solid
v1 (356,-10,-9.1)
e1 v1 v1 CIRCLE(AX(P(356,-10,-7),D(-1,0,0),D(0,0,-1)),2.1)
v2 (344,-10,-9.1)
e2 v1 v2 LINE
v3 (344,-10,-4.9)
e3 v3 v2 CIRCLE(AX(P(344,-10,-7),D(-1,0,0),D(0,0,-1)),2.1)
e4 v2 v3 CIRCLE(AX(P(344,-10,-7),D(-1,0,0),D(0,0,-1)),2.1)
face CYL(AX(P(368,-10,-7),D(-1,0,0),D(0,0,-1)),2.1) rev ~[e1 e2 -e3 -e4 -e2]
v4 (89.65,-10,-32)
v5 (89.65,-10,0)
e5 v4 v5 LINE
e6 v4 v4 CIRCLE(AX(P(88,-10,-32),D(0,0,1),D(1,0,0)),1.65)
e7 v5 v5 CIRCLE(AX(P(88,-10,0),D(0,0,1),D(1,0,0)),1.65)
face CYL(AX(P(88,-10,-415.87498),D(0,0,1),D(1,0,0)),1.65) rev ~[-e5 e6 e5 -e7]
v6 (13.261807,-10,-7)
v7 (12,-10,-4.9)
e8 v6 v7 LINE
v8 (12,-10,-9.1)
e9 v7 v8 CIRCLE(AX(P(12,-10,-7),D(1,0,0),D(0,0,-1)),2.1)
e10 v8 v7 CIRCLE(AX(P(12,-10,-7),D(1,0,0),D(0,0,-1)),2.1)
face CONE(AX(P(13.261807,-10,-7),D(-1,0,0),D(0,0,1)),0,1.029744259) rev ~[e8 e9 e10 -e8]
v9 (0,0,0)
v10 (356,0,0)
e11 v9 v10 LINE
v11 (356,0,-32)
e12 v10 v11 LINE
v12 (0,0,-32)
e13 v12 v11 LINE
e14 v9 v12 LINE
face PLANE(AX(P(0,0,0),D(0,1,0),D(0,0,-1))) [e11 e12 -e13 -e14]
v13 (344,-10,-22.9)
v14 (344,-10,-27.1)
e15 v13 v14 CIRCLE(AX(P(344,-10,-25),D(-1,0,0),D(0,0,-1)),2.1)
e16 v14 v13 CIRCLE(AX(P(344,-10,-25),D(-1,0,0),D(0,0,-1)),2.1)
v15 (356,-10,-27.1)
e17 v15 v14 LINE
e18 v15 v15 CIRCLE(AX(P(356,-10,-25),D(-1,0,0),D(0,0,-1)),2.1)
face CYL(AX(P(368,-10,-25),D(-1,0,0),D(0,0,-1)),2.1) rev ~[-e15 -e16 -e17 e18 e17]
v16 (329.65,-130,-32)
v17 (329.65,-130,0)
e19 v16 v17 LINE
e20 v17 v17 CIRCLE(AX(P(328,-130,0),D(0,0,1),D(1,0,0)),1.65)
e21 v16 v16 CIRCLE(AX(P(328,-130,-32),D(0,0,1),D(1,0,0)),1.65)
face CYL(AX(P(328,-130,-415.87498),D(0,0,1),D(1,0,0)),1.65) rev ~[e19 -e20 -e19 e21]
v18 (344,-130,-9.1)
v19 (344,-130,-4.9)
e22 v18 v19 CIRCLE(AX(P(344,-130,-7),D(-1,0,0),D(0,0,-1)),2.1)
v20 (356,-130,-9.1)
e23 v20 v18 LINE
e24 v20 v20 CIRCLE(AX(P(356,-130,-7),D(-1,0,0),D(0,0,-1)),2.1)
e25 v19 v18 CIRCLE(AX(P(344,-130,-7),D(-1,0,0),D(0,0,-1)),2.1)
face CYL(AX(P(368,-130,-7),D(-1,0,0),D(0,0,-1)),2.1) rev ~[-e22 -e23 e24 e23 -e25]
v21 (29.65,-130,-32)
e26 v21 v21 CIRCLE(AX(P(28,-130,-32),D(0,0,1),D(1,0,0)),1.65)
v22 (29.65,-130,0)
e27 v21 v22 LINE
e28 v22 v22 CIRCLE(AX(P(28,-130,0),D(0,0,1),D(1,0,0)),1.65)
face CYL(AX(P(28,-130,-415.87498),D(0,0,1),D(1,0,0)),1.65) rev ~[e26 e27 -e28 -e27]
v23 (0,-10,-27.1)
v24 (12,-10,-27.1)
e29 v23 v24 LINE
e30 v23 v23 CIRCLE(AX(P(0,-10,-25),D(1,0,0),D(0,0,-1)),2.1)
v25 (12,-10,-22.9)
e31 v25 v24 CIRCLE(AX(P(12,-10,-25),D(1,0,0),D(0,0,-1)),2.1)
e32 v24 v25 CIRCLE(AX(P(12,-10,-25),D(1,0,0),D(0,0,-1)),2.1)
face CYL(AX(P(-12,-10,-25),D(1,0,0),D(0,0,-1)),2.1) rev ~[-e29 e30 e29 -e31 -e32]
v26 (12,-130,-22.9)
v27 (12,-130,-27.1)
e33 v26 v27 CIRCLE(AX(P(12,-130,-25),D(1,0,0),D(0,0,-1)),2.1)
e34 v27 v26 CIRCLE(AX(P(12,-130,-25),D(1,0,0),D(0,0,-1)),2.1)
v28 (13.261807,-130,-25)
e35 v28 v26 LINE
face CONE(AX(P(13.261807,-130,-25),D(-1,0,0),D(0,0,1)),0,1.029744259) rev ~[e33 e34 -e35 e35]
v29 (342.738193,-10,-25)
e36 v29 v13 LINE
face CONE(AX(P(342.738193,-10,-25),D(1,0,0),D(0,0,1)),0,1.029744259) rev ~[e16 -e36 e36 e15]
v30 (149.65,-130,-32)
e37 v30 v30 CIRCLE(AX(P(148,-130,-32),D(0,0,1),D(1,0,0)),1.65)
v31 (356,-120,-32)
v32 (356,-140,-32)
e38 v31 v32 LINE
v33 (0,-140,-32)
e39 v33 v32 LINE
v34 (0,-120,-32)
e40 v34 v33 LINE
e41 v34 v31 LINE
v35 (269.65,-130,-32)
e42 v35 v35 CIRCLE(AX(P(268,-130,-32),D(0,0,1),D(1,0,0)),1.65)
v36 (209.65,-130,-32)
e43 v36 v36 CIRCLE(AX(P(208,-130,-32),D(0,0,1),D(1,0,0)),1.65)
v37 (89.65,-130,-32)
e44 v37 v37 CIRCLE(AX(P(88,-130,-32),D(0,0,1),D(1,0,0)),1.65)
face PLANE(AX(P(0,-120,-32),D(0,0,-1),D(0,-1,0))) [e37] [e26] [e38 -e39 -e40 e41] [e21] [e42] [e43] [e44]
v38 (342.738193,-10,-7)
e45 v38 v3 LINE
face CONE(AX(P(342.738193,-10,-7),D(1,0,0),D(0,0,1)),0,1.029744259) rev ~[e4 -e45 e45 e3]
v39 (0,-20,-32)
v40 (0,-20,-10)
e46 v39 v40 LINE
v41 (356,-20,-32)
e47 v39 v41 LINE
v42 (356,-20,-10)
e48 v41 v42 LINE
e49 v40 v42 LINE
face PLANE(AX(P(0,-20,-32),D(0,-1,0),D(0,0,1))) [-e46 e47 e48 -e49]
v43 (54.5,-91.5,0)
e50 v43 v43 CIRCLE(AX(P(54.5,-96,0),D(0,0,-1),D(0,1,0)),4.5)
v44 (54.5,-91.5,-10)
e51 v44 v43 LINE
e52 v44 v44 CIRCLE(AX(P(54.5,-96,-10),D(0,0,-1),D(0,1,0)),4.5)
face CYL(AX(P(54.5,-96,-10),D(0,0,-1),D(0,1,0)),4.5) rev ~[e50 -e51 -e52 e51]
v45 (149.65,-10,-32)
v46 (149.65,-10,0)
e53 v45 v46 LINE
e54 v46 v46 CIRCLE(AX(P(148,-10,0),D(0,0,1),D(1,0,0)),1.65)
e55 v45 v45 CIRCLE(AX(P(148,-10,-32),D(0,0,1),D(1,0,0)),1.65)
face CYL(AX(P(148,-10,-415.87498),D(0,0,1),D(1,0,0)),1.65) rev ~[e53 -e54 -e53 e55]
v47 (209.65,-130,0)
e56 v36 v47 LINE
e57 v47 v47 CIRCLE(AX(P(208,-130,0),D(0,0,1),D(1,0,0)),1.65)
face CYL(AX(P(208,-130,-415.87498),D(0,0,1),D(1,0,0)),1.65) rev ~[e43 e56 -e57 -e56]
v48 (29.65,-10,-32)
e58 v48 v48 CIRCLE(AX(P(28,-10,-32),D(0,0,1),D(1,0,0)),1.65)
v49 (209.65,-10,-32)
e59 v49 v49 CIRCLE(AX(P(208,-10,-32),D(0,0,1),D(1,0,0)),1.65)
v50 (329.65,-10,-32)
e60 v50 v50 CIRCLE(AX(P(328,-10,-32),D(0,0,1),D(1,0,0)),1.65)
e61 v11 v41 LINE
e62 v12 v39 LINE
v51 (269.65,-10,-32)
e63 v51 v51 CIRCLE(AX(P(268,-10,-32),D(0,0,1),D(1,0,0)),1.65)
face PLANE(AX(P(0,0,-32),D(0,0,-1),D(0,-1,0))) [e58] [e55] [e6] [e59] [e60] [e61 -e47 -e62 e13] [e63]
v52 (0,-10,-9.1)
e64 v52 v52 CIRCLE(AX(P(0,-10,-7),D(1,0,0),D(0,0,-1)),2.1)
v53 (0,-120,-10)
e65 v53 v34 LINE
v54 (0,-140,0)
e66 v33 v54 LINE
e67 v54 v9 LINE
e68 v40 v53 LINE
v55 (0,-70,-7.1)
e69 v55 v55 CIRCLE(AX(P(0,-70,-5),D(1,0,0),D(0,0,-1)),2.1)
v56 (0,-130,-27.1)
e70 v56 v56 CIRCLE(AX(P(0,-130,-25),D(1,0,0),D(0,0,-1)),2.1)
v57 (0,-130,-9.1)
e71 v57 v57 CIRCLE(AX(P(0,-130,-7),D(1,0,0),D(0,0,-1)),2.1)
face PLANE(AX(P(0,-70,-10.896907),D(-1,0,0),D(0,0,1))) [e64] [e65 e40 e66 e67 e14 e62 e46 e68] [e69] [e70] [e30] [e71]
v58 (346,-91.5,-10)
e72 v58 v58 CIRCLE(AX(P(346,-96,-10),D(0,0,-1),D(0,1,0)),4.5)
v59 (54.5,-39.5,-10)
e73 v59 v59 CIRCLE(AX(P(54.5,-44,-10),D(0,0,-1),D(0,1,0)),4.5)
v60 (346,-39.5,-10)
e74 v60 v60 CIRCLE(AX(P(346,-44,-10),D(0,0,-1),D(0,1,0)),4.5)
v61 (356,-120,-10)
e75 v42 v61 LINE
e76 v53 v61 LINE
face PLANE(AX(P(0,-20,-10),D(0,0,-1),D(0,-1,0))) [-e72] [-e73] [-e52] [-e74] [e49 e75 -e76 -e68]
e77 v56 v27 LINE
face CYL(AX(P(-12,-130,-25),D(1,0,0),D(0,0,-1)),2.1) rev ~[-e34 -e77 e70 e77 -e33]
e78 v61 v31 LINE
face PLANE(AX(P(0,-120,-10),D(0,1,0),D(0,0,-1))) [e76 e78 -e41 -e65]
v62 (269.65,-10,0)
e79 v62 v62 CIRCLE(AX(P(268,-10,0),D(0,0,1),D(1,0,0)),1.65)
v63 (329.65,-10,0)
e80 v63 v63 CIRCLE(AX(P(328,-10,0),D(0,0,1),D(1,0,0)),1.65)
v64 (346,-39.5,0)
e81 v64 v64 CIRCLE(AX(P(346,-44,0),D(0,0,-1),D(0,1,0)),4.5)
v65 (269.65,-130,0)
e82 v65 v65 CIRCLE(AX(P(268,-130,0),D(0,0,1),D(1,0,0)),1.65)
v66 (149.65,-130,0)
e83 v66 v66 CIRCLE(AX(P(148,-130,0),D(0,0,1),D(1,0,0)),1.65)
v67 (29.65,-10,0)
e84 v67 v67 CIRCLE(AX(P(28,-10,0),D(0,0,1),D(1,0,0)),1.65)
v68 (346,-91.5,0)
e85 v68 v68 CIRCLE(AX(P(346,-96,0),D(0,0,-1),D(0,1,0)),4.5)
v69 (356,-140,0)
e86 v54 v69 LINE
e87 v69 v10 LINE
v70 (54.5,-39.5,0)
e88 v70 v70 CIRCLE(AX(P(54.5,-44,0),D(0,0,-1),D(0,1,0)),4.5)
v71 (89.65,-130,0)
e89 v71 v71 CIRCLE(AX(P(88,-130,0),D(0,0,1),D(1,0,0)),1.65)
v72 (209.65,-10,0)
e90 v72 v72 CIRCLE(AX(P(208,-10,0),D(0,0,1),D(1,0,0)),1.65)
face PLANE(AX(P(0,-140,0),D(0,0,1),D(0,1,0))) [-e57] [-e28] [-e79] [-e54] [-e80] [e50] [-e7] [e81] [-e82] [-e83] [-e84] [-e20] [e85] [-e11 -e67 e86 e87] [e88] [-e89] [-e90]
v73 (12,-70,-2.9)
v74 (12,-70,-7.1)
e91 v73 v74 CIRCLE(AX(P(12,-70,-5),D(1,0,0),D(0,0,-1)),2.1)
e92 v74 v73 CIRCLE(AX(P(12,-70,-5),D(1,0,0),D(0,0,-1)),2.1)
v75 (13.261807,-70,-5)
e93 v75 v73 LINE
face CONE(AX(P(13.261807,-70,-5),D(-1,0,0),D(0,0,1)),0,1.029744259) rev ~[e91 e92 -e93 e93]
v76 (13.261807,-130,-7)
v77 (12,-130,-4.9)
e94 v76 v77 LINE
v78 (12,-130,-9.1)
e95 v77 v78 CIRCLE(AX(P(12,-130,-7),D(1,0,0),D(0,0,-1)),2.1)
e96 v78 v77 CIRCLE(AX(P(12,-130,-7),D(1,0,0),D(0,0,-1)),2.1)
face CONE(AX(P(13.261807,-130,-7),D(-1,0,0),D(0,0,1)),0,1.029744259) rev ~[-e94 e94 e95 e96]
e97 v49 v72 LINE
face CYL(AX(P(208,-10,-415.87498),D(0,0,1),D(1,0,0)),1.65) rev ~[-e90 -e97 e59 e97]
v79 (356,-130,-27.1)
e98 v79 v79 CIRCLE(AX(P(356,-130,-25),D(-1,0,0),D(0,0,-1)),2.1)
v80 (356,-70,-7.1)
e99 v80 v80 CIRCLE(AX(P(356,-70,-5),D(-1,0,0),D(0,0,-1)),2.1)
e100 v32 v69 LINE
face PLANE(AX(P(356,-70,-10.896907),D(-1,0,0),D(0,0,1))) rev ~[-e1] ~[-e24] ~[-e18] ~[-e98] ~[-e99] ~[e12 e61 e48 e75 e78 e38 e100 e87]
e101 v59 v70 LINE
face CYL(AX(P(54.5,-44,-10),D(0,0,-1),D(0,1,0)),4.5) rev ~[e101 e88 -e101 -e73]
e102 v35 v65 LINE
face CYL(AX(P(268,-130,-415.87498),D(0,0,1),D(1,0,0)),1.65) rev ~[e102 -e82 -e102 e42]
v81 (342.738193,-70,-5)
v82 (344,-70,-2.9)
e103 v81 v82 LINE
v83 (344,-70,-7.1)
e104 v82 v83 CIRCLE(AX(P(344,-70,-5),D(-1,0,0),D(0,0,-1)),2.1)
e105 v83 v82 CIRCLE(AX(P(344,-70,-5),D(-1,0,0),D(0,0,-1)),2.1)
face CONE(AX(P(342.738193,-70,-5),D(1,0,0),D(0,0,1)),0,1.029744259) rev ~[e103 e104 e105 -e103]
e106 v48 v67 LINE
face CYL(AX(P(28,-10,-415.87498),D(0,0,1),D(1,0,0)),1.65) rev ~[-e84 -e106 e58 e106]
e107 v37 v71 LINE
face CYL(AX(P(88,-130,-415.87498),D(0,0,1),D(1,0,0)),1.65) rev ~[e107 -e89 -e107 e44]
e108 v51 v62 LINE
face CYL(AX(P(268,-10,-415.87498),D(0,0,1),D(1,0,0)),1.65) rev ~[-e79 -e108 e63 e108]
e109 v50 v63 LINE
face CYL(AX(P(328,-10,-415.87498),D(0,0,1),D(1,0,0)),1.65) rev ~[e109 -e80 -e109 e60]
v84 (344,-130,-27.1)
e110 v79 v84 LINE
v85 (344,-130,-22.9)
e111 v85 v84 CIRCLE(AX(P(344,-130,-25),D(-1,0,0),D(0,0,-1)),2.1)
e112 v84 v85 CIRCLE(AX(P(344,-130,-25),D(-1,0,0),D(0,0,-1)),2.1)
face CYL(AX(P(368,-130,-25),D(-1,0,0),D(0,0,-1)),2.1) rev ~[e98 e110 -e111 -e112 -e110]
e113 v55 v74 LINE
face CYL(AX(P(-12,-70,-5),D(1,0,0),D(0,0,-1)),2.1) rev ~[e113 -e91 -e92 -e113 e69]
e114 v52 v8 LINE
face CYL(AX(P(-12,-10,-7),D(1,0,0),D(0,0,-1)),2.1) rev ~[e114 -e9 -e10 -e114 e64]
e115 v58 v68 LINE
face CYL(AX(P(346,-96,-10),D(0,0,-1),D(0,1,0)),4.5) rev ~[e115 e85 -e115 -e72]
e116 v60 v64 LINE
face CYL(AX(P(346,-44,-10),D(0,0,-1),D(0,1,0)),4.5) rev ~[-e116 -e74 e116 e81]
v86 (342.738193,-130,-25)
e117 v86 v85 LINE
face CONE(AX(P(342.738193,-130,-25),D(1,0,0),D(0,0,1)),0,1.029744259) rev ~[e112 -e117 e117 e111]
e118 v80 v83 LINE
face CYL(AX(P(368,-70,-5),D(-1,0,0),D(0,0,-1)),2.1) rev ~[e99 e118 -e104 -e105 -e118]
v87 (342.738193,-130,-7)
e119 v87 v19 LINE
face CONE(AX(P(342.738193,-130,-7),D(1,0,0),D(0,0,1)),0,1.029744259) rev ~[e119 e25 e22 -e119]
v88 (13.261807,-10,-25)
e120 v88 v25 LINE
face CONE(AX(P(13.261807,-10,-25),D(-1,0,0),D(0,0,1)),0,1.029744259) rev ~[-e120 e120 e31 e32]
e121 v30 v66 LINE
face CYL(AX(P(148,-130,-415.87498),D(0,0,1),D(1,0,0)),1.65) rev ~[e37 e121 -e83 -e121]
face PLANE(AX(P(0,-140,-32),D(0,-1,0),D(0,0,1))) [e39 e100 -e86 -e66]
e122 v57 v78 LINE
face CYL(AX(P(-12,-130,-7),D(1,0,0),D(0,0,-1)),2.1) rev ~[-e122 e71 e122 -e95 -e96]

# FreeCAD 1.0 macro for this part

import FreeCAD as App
import Part
import Sketcher
from FreeCAD import Vector
Q = App.Units.Quantity


def add_polygon(sketch, points):
    """Adds a closed chain of lines whose ends are joined by coincident constraints."""
    first, n = sketch.GeometryCount, len(points)
    for a, b in zip(points, points[1:] + points[:1]):
        sketch.addGeometry(Part.LineSegment(App.Vector(*a, 0), App.Vector(*b, 0)), False)
    for i in range(n):
        sketch.addConstraint(Sketcher.Constraint("Coincident", first + i, 2, first + (i + 1) % n, 1))

doc = App.newDocument("Part")
body = doc.addObject("PartDesign::Body", "Body")

# Sketch on YZ plane
sketch1 = body.newObject("Sketcher::SketchObject", "Sketch")
sketch1.AttachmentSupport = (doc.getObject("YZ_Plane"), [""])
sketch1.MapMode = "FlatFace"
add_polygon(sketch1, [(0, -32), (0, 0), (-140, 0), (-140, -32), (-120, -32), (-120, -10), (-20, -10), (-20, -32)])  # lines 0-7
sketch1.addConstraint([
    Sketcher.Constraint("Vertical", 0),
    Sketcher.Constraint("Horizontal", 1),
    Sketcher.Constraint("Vertical", 2),
    Sketcher.Constraint("Horizontal", 3),
    Sketcher.Constraint("Vertical", 4),
    Sketcher.Constraint("Horizontal", 5),
    Sketcher.Constraint("Vertical", 6),
    Sketcher.Constraint("Horizontal", 7),
    Sketcher.Constraint("Coincident", 0, 2, -1, 1),
    Sketcher.Constraint("Horizontal", 3, 2, 6, 2),
    Sketcher.Constraint("Equal", 3, 7),
    Sketcher.Constraint("DistanceX", 1, 2, 1, 1, Q("140 mm")),
    Sketcher.Constraint("DistanceX", 3, 1, 3, 2, Q("20 mm")),
    Sketcher.Constraint("DistanceY", 0, 1, 0, 2, Q("32 mm")),
    Sketcher.Constraint("DistanceY", 4, 1, 4, 2, Q("22 mm")),
])
pad1 = body.newObject("PartDesign::Pad", "Pad")
pad1.Profile = sketch1
pad1.Length = 356

# Sketch on YZ plane
sketch2 = body.newObject("Sketcher::SketchObject", "Sketch001")
sketch2.AttachmentSupport = (doc.getObject("YZ_Plane"), [""])
sketch2.MapMode = "FlatFace"
sketch2.AttachmentOffset = App.Placement(Vector(0, 0, 356), App.Rotation())
sketch2.addGeometry([
    Part.Circle(Vector(-130, -25, 0), Vector(0, 0, 1), 2.1),  # 0
    Part.Circle(Vector(-130, -7, 0), Vector(0, 0, 1), 2.1),  # 1
    Part.Circle(Vector(-10, -7, 0), Vector(0, 0, 1), 2.1),  # 2
    Part.Circle(Vector(-10, -25, 0), Vector(0, 0, 1), 2.1),  # 3
    Part.Circle(Vector(-70, -5, 0), Vector(0, 0, 1), 2.1),  # 4
], False)
sketch2.addConstraint([
    Sketcher.Constraint("Equal", 0, 1),
    Sketcher.Constraint("Equal", 1, 2),
    Sketcher.Constraint("Equal", 2, 3),
    Sketcher.Constraint("Equal", 3, 4),
    Sketcher.Constraint("Horizontal", 1, 3, 2, 3),
    Sketcher.Constraint("Horizontal", 0, 3, 3, 3),
    Sketcher.Constraint("Vertical", 0, 3, 1, 3),
    Sketcher.Constraint("Vertical", 2, 3, 3, 3),
    Sketcher.Constraint("Diameter", 0, Q("4.2 mm")),
    Sketcher.Constraint("DistanceX", 0, 3, -1, 1, Q("130 mm")),
    Sketcher.Constraint("DistanceY", 0, 3, -1, 1, Q("25 mm")),
    Sketcher.Constraint("DistanceY", 1, 3, -1, 1, Q("7 mm")),
    Sketcher.Constraint("DistanceX", 2, 3, -1, 1, Q("10 mm")),
    Sketcher.Constraint("DistanceX", 4, 3, -1, 1, Q("70 mm")),
    Sketcher.Constraint("DistanceY", 4, 3, -1, 1, Q("5 mm")),
])
doc.recompute()
hole = body.newObject("PartDesign::Hole", "Hole")
hole.Profile = sketch2
hole.ThreadType = "None"
hole.Diameter = 4.2
hole.DepthType = "Dimension"
hole.Depth = 12
hole.DrillPoint = "Angled"
hole.DrillPointAngle = 118

# Sketch on XY plane
sketch3 = body.newObject("Sketcher::SketchObject", "Sketch002")
sketch3.AttachmentSupport = (doc.getObject("XY_Plane"), [""])
sketch3.MapMode = "FlatFace"
sketch3.AttachmentOffset = App.Placement(Vector(0, 0, -10), App.Rotation())
sketch3.addGeometry([
    Part.Circle(Vector(346, -44, 0), Vector(0, 0, 1), 4.5),
    Part.Circle(Vector(346, -96, 0), Vector(0, 0, 1), 4.5),
    Part.Circle(Vector(54.5, -44, 0), Vector(0, 0, 1), 4.5),
    Part.Circle(Vector(54.5, -96, 0), Vector(0, 0, 1), 4.5),
], False)
sketch3.addConstraint([
    Sketcher.Constraint("Equal", 0, 1),
    Sketcher.Constraint("Equal", 1, 2),
    Sketcher.Constraint("Equal", 2, 3),
    Sketcher.Constraint("Horizontal", 0, 3, 2, 3),
    Sketcher.Constraint("Horizontal", 1, 3, 3, 3),
    Sketcher.Constraint("Vertical", 0, 3, 1, 3),
    Sketcher.Constraint("Vertical", 2, 3, 3, 3),
    Sketcher.Constraint("Diameter", 0, Q("9 mm")),
    Sketcher.Constraint("DistanceX", -1, 1, 0, 3, Q("346 mm")),
    Sketcher.Constraint("DistanceY", 0, 3, -1, 1, Q("44 mm")),
    Sketcher.Constraint("DistanceY", 1, 3, -1, 1, Q("96 mm")),
    Sketcher.Constraint("DistanceX", -1, 1, 2, 3, Q("54.5 mm")),
])
pocket1 = body.newObject("PartDesign::Pocket", "Pocket")
pocket1.Profile = sketch3
pocket1.Type = "ThroughAll"
pocket1.Reversed = True

# Sketch on XY plane
sketch4 = body.newObject("Sketcher::SketchObject", "Sketch003")
sketch4.AttachmentSupport = (doc.getObject("XY_Plane"), [""])
sketch4.MapMode = "FlatFace"
sketch4.AttachmentOffset = App.Placement(Vector(0, 0, -32), App.Rotation())
sketch4.addGeometry([
    Part.Circle(Vector(328, -130, 0), Vector(0, 0, 1), 1.6),
    Part.Circle(Vector(328, -10, 0), Vector(0, 0, 1), 1.6),
], False)
sketch4.addConstraint([
    Sketcher.Constraint("Equal", 0, 1),
    Sketcher.Constraint("Vertical", 0, 3, 1, 3),
    Sketcher.Constraint("Diameter", 0, Q("3.3 mm")),
    Sketcher.Constraint("DistanceX", -1, 1, 0, 3, Q("328 mm")),
    Sketcher.Constraint("DistanceY", 0, 3, -1, 1, Q("130 mm")),
    Sketcher.Constraint("DistanceY", 1, 3, -1, 1, Q("10 mm")),
])
doc.recompute()
hole2 = body.newObject("PartDesign::Hole", "Hole001")
hole2.Profile = sketch4
hole2.ThreadType = "None"
hole2.Diameter = 3.3
hole2.DepthType = "ThroughAll"
hole2.Reversed = True
doc.recompute()

linearpattern = body.newObject("PartDesign::LinearPattern", "LinearPattern")
linearpattern.Originals = [hole2]
linearpattern.Direction = (doc.getObject("X_Axis"), [""])
linearpattern.Mode = "offset"
linearpattern.Offset = 60
linearpattern.Occurrences = 6
linearpattern.Reversed = True
body.Tip = linearpattern

# Sketch on YZ plane
sketch5 = body.newObject("Sketcher::SketchObject", "Sketch004")
sketch5.AttachmentSupport = (doc.getObject("YZ_Plane"), [""])
sketch5.MapMode = "FlatFace"
sketch5.addGeometry([
    Part.Circle(Vector(-10, -7, 0), Vector(0, 0, 1), 2.1),  # 0
    Part.Circle(Vector(-10, -25, 0), Vector(0, 0, 1), 2.1),  # 1
    Part.Circle(Vector(-70, -5, 0), Vector(0, 0, 1), 2.1),  # 2
    Part.Circle(Vector(-130, -7, 0), Vector(0, 0, 1), 2.1),  # 3
    Part.Circle(Vector(-130, -25, 0), Vector(0, 0, 1), 2.1),  # 4
], False)
sketch5.addConstraint([
    Sketcher.Constraint("Equal", 0, 1),
    Sketcher.Constraint("Equal", 1, 2),
    Sketcher.Constraint("Equal", 2, 3),
    Sketcher.Constraint("Equal", 3, 4),
    Sketcher.Constraint("Horizontal", 0, 3, 3, 3),
    Sketcher.Constraint("Horizontal", 1, 3, 4, 3),
    Sketcher.Constraint("Vertical", 0, 3, 1, 3),
    Sketcher.Constraint("Vertical", 3, 3, 4, 3),
    Sketcher.Constraint("Diameter", 0, Q("4.2 mm")),
    Sketcher.Constraint("DistanceX", 0, 3, -1, 1, Q("10 mm")),
    Sketcher.Constraint("DistanceY", 0, 3, -1, 1, Q("7 mm")),
    Sketcher.Constraint("DistanceY", 1, 3, -1, 1, Q("25 mm")),
    Sketcher.Constraint("DistanceX", 2, 3, -1, 1, Q("70 mm")),
    Sketcher.Constraint("DistanceY", 2, 3, -1, 1, Q("5 mm")),
    Sketcher.Constraint("DistanceX", 3, 3, -1, 1, Q("130 mm")),
])
doc.recompute()
hole3 = body.newObject("PartDesign::Hole", "Hole002")
hole3.Profile = sketch5
hole3.ThreadType = "None"
hole3.Diameter = 4.2
hole3.DepthType = "Dimension"
hole3.Depth = 12
hole3.DrillPoint = "Angled"
hole3.DrillPointAngle = 118
hole3.Reversed = True

doc.recompute()
